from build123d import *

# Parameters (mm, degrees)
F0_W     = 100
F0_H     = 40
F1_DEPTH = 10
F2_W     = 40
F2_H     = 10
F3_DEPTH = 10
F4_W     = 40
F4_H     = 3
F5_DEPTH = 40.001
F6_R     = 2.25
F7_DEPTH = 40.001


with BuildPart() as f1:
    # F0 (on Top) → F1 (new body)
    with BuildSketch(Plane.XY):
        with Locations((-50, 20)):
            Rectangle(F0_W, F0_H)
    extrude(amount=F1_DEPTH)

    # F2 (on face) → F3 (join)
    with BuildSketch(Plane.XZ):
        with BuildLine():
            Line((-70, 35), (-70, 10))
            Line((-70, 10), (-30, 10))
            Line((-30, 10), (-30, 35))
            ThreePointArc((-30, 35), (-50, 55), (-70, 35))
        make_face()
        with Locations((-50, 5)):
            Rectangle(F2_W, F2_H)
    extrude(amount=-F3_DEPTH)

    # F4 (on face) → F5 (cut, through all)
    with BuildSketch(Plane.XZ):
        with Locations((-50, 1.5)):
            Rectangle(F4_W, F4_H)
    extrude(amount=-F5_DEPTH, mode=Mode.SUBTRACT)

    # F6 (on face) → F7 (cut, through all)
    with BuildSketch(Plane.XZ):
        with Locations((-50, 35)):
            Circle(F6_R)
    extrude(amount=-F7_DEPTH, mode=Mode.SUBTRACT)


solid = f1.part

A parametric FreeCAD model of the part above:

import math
import FreeCAD as App
import Part
import Sketcher
from FreeCAD import Vector


def add_polygon(sketch, points):
    """Adds a closed chain of lines whose ends are joined by coincident constraints."""
    first, n = sketch.GeometryCount, len(points)
    for a, b in zip(points, points[1:] + points[:1]):
        sketch.addGeometry(Part.LineSegment(App.Vector(*a, 0), App.Vector(*b, 0)), False)
    for i in range(n):
        sketch.addConstraint(Sketcher.Constraint("Coincident", first + i, 2, first + (i + 1) % n, 1))

doc = App.newDocument("Part")
body = doc.addObject("PartDesign::Body", "Body")

# Sketch on XY plane
sketch1 = body.newObject("Sketcher::SketchObject", "Sketch")
sketch1.AttachmentSupport = (doc.getObject("XY_Plane"), [""])
sketch1.MapMode = "FlatFace"
add_polygon(sketch1, [(-100, 40), (-100, 0), (0, 0), (0, 40)])  # lines 0-3
sketch1.addConstraint(Sketcher.Constraint("Vertical", 0))
sketch1.addConstraint(Sketcher.Constraint("Horizontal", 1))
sketch1.addConstraint(Sketcher.Constraint("Vertical", 2))
sketch1.addConstraint(Sketcher.Constraint("Horizontal", 3))
sketch1.addConstraint(Sketcher.Constraint("Coincident", 1, 2, -1, 1))
sketch1.addConstraint(Sketcher.Constraint("DistanceX", 1, 1, 1, 2, 100.0))
sketch1.addConstraint(Sketcher.Constraint("DistanceY", 0, 2, 0, 1, 40.0))
pad1 = body.newObject("PartDesign::Pad", "Pad")
pad1.Profile = sketch1
pad1.Length = 10

# Sketch on XZ plane
sketch2 = body.newObject("Sketcher::SketchObject", "Sketch001")
sketch2.AttachmentSupport = (doc.getObject("XZ_Plane"), [""])
sketch2.MapMode = "FlatFace"
sketch2.addGeometry(Part.LineSegment(Vector(-70, 35, 0), Vector(-70, 0, 0)), False)
sketch2.addGeometry(Part.LineSegment(Vector(-70, 0, 0), Vector(-30, 0, 0)), False)
sketch2.addGeometry(Part.LineSegment(Vector(-30, 0, 0), Vector(-30, 35, 0)), False)
sketch2.addGeometry(Part.ArcOfCircle(Part.Circle(Vector(-50, 35, 0), Vector(0, 0, 1), 20), math.radians(0), math.radians(180)), False)
sketch2.addConstraint(Sketcher.Constraint("Coincident", 0, 2, 1, 1))
sketch2.addConstraint(Sketcher.Constraint("Coincident", 1, 2, 2, 1))
sketch2.addConstraint(Sketcher.Constraint("Tangent", 2, 2, 3, 1))
sketch2.addConstraint(Sketcher.Constraint("Tangent", 3, 2, 0, 1))
sketch2.addConstraint(Sketcher.Constraint("Vertical", 0))
sketch2.addConstraint(Sketcher.Constraint("Horizontal", 1))
sketch2.addConstraint(Sketcher.Constraint("Vertical", 2))
sketch2.addConstraint(Sketcher.Constraint("PointOnObject", 0, 2, -1))
sketch2.addConstraint(Sketcher.Constraint("Radius", 3, 20.0))
sketch2.addConstraint(Sketcher.Constraint("DistanceY", 0, 2, 0, 1, 35.0))
sketch2.addConstraint(Sketcher.Constraint("DistanceX", 3, 3, -1, 1, 50.0))
pad2 = body.newObject("PartDesign::Pad", "Pad001")
pad2.Profile = sketch2
pad2.Length = 10
pad2.Reversed = True

# Sketch on XZ plane
sketch3 = body.newObject("Sketcher::SketchObject", "Sketch002")
sketch3.AttachmentSupport = (doc.getObject("XZ_Plane"), [""])
sketch3.MapMode = "FlatFace"
add_polygon(sketch3, [(-70, 3), (-70, 0), (-30, 0), (-30, 3)])  # lines 0-3
sketch3.addConstraint(Sketcher.Constraint("Vertical", 0))
sketch3.addConstraint(Sketcher.Constraint("Horizontal", 1))
sketch3.addConstraint(Sketcher.Constraint("Vertical", 2))
sketch3.addConstraint(Sketcher.Constraint("Horizontal", 3))
sketch3.addConstraint(Sketcher.Constraint("PointOnObject", 0, 2, -1))
sketch3.addConstraint(Sketcher.Constraint("DistanceX", 1, 1, 1, 2, 40.0))
sketch3.addConstraint(Sketcher.Constraint("DistanceY", 0, 2, 0, 1, 3.0))
sketch3.addConstraint(Sketcher.Constraint("DistanceX", 0, 2, -1, 1, 70.0))
pocket1 = body.newObject("PartDesign::Pocket", "Pocket")
pocket1.Profile = sketch3
pocket1.Type = "ThroughAll"

# Sketch on XZ plane
sketch4 = body.newObject("Sketcher::SketchObject", "Sketch003")
sketch4.AttachmentSupport = (doc.getObject("XZ_Plane"), [""])
sketch4.MapMode = "FlatFace"
sketch4.addGeometry(Part.Circle(Vector(-50, 35, 0), Vector(0, 0, 1), 2.2), False)
sketch4.addConstraint(Sketcher.Constraint("Diameter", 0, 4.5))
sketch4.addConstraint(Sketcher.Constraint("DistanceX", 0, 3, -1, 1, 50.0))
sketch4.addConstraint(Sketcher.Constraint("DistanceY", -1, 1, 0, 3, 35.0))
pocket2 = body.newObject("PartDesign::Pocket", "Pocket001")
pocket2.Profile = sketch4
pocket2.Type = "ThroughAll"

doc.recompute()
